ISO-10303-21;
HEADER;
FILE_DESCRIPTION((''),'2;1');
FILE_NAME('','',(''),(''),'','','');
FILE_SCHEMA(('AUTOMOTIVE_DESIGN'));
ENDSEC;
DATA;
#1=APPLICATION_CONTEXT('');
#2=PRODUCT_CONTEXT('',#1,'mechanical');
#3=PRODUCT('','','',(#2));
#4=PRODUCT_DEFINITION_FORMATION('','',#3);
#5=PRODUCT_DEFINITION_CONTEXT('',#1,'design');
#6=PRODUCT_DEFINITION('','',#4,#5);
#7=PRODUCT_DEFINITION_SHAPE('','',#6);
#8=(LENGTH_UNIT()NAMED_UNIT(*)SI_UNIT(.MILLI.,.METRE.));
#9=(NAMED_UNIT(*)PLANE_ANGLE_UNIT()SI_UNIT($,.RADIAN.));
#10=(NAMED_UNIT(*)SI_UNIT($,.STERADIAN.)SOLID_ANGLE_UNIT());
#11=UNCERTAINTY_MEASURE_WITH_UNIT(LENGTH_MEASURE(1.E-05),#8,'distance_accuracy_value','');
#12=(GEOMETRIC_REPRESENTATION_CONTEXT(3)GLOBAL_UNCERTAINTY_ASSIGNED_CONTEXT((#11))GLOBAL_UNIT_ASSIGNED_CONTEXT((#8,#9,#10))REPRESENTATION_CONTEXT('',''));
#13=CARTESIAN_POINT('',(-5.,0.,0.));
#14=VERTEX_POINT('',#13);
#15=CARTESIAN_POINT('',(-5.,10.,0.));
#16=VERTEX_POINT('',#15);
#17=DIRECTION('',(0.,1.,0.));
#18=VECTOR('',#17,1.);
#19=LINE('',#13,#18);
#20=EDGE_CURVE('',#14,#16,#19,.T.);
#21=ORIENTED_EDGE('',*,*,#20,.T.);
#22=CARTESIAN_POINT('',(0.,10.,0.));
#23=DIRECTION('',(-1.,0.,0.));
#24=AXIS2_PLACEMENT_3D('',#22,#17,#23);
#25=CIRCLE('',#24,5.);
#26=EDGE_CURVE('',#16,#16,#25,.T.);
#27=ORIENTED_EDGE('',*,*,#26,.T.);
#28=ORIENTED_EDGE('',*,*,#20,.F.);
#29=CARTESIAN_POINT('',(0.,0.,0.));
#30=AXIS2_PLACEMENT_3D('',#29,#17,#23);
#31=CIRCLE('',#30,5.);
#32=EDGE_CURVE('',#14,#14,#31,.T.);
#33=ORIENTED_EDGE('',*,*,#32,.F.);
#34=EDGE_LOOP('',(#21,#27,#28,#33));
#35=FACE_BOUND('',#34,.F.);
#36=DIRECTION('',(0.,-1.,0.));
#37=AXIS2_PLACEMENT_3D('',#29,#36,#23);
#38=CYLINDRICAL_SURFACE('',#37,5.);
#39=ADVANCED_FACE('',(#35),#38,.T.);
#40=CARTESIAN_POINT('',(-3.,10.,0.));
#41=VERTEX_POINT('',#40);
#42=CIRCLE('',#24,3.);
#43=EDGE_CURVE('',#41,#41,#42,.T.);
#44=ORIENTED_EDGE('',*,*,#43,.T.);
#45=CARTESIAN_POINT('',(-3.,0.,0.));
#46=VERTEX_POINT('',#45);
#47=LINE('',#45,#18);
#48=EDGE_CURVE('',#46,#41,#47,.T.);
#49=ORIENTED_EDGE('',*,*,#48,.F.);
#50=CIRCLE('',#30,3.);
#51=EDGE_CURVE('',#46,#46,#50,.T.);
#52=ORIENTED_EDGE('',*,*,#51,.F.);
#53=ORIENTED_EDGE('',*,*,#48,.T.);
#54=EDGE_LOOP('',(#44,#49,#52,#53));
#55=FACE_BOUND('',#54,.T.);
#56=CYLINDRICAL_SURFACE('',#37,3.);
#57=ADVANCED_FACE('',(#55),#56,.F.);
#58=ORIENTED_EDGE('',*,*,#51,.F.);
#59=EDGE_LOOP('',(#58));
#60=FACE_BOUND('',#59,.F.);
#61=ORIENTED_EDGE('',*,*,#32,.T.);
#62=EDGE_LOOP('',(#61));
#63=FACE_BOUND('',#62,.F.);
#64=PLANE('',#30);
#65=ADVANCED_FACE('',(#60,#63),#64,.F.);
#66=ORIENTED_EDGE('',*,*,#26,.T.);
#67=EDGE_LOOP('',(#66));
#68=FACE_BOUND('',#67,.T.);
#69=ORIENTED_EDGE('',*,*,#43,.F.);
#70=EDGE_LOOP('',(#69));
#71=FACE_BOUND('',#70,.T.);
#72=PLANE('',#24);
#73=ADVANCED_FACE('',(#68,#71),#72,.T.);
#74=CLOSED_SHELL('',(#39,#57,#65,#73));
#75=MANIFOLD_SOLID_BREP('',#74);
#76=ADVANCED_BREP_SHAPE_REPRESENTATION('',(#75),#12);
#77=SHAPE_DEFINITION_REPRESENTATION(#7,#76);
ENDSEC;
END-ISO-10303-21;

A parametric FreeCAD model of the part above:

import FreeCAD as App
import Part
import Sketcher

V = App.Vector
Q = App.Units.Quantity

doc = App.newDocument("Part")
body = doc.addObject("PartDesign::Body", "Body")

# Sketch on XZ plane
sketch1 = body.newObject("Sketcher::SketchObject", "Sketch")
sketch1.AttachmentSupport = (doc.getObject("XZ_Plane"), [""])
sketch1.MapMode = "FlatFace"
sketch1.addGeometry(Part.Circle(V(0, 0, 0), V(0, 0, 1), 5), False)
sketch1.addGeometry(Part.Circle(V(0, 0, 0), V(0, 0, 1), 3), False)
sketch1.addConstraint(Sketcher.Constraint("Coincident", 0, 3, -1, 1))
sketch1.addConstraint(Sketcher.Constraint("Coincident", 1, 3, -1, 1))
sketch1.addConstraint(Sketcher.Constraint("Diameter", 0, Q("10 mm")))
sketch1.addConstraint(Sketcher.Constraint("Diameter", 1, Q("6 mm")))
pad1 = body.newObject("PartDesign::Pad", "Pad")
pad1.Profile = sketch1
pad1.Length = 10
pad1.Reversed = True

doc.recompute()
